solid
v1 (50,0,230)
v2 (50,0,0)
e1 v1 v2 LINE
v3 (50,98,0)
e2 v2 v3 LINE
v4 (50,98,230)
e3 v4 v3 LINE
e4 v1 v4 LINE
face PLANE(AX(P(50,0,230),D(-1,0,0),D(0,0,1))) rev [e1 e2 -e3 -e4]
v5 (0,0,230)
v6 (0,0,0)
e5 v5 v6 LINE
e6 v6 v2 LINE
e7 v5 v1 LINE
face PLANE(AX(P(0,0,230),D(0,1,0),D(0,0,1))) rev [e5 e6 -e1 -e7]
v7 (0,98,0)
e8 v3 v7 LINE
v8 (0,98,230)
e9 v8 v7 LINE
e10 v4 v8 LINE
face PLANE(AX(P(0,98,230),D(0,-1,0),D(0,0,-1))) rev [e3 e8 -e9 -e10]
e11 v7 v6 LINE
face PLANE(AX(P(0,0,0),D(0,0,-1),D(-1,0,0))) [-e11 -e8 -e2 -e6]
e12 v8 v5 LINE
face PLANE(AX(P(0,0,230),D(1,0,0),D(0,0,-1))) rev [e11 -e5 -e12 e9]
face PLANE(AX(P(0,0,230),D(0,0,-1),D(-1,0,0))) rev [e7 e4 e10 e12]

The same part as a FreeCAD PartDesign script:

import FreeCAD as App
import Part
import Sketcher
from FreeCAD import Vector


def add_polygon(sketch, points):
    """Adds a closed chain of lines whose ends are joined by coincident constraints."""
    first, n = sketch.GeometryCount, len(points)
    for a, b in zip(points, points[1:] + points[:1]):
        sketch.addGeometry(Part.LineSegment(App.Vector(*a, 0), App.Vector(*b, 0)), False)
    for i in range(n):
        sketch.addConstraint(Sketcher.Constraint("Coincident", first + i, 2, first + (i + 1) % n, 1))

doc = App.newDocument("Part")
params = doc.addObject("Spreadsheet::Sheet", "Params")
for row, (alias, value) in enumerate([
    ("sketch1_width", "50 mm"),
    ("sketch1_height", "98 mm"),
    ("pad1_length", "230 mm"),
], start=1):
    params.set(f"A{row}", alias)
    params.set(f"B{row}", "=" + value)
    params.setAlias(f"B{row}", alias)

body = doc.addObject("PartDesign::Body", "Body")

sketch1 = body.newObject("Sketcher::SketchObject", "Sketch")
sketch1.AttachmentSupport = (doc.getObject("XY_Plane"), [""])
sketch1.MapMode = "FlatFace"
add_polygon(sketch1, [(0, 98), (0, 0), (50, 0), (50, 98)])
sketch1.addConstraint([
    Sketcher.Constraint("Vertical", 0),
    Sketcher.Constraint("Horizontal", 1),
    Sketcher.Constraint("Vertical", 2),
    Sketcher.Constraint("Horizontal", 3),
    Sketcher.Constraint("Coincident", 0, 2, -1, 1),
    Sketcher.Constraint("DistanceX", 1, 1, 1, 2, 50.0),
    Sketcher.Constraint("DistanceY", 0, 2, 0, 1, 98.0),
])
sketch1.setExpression("Constraints[9]", "Params.sketch1_width")
sketch1.setExpression("Constraints[10]", "Params.sketch1_height")
pad1 = body.newObject("PartDesign::Pad", "Pad")
pad1.Profile = sketch1
pad1.setExpression("Length", "Params.pad1_length")

doc.recompute()
